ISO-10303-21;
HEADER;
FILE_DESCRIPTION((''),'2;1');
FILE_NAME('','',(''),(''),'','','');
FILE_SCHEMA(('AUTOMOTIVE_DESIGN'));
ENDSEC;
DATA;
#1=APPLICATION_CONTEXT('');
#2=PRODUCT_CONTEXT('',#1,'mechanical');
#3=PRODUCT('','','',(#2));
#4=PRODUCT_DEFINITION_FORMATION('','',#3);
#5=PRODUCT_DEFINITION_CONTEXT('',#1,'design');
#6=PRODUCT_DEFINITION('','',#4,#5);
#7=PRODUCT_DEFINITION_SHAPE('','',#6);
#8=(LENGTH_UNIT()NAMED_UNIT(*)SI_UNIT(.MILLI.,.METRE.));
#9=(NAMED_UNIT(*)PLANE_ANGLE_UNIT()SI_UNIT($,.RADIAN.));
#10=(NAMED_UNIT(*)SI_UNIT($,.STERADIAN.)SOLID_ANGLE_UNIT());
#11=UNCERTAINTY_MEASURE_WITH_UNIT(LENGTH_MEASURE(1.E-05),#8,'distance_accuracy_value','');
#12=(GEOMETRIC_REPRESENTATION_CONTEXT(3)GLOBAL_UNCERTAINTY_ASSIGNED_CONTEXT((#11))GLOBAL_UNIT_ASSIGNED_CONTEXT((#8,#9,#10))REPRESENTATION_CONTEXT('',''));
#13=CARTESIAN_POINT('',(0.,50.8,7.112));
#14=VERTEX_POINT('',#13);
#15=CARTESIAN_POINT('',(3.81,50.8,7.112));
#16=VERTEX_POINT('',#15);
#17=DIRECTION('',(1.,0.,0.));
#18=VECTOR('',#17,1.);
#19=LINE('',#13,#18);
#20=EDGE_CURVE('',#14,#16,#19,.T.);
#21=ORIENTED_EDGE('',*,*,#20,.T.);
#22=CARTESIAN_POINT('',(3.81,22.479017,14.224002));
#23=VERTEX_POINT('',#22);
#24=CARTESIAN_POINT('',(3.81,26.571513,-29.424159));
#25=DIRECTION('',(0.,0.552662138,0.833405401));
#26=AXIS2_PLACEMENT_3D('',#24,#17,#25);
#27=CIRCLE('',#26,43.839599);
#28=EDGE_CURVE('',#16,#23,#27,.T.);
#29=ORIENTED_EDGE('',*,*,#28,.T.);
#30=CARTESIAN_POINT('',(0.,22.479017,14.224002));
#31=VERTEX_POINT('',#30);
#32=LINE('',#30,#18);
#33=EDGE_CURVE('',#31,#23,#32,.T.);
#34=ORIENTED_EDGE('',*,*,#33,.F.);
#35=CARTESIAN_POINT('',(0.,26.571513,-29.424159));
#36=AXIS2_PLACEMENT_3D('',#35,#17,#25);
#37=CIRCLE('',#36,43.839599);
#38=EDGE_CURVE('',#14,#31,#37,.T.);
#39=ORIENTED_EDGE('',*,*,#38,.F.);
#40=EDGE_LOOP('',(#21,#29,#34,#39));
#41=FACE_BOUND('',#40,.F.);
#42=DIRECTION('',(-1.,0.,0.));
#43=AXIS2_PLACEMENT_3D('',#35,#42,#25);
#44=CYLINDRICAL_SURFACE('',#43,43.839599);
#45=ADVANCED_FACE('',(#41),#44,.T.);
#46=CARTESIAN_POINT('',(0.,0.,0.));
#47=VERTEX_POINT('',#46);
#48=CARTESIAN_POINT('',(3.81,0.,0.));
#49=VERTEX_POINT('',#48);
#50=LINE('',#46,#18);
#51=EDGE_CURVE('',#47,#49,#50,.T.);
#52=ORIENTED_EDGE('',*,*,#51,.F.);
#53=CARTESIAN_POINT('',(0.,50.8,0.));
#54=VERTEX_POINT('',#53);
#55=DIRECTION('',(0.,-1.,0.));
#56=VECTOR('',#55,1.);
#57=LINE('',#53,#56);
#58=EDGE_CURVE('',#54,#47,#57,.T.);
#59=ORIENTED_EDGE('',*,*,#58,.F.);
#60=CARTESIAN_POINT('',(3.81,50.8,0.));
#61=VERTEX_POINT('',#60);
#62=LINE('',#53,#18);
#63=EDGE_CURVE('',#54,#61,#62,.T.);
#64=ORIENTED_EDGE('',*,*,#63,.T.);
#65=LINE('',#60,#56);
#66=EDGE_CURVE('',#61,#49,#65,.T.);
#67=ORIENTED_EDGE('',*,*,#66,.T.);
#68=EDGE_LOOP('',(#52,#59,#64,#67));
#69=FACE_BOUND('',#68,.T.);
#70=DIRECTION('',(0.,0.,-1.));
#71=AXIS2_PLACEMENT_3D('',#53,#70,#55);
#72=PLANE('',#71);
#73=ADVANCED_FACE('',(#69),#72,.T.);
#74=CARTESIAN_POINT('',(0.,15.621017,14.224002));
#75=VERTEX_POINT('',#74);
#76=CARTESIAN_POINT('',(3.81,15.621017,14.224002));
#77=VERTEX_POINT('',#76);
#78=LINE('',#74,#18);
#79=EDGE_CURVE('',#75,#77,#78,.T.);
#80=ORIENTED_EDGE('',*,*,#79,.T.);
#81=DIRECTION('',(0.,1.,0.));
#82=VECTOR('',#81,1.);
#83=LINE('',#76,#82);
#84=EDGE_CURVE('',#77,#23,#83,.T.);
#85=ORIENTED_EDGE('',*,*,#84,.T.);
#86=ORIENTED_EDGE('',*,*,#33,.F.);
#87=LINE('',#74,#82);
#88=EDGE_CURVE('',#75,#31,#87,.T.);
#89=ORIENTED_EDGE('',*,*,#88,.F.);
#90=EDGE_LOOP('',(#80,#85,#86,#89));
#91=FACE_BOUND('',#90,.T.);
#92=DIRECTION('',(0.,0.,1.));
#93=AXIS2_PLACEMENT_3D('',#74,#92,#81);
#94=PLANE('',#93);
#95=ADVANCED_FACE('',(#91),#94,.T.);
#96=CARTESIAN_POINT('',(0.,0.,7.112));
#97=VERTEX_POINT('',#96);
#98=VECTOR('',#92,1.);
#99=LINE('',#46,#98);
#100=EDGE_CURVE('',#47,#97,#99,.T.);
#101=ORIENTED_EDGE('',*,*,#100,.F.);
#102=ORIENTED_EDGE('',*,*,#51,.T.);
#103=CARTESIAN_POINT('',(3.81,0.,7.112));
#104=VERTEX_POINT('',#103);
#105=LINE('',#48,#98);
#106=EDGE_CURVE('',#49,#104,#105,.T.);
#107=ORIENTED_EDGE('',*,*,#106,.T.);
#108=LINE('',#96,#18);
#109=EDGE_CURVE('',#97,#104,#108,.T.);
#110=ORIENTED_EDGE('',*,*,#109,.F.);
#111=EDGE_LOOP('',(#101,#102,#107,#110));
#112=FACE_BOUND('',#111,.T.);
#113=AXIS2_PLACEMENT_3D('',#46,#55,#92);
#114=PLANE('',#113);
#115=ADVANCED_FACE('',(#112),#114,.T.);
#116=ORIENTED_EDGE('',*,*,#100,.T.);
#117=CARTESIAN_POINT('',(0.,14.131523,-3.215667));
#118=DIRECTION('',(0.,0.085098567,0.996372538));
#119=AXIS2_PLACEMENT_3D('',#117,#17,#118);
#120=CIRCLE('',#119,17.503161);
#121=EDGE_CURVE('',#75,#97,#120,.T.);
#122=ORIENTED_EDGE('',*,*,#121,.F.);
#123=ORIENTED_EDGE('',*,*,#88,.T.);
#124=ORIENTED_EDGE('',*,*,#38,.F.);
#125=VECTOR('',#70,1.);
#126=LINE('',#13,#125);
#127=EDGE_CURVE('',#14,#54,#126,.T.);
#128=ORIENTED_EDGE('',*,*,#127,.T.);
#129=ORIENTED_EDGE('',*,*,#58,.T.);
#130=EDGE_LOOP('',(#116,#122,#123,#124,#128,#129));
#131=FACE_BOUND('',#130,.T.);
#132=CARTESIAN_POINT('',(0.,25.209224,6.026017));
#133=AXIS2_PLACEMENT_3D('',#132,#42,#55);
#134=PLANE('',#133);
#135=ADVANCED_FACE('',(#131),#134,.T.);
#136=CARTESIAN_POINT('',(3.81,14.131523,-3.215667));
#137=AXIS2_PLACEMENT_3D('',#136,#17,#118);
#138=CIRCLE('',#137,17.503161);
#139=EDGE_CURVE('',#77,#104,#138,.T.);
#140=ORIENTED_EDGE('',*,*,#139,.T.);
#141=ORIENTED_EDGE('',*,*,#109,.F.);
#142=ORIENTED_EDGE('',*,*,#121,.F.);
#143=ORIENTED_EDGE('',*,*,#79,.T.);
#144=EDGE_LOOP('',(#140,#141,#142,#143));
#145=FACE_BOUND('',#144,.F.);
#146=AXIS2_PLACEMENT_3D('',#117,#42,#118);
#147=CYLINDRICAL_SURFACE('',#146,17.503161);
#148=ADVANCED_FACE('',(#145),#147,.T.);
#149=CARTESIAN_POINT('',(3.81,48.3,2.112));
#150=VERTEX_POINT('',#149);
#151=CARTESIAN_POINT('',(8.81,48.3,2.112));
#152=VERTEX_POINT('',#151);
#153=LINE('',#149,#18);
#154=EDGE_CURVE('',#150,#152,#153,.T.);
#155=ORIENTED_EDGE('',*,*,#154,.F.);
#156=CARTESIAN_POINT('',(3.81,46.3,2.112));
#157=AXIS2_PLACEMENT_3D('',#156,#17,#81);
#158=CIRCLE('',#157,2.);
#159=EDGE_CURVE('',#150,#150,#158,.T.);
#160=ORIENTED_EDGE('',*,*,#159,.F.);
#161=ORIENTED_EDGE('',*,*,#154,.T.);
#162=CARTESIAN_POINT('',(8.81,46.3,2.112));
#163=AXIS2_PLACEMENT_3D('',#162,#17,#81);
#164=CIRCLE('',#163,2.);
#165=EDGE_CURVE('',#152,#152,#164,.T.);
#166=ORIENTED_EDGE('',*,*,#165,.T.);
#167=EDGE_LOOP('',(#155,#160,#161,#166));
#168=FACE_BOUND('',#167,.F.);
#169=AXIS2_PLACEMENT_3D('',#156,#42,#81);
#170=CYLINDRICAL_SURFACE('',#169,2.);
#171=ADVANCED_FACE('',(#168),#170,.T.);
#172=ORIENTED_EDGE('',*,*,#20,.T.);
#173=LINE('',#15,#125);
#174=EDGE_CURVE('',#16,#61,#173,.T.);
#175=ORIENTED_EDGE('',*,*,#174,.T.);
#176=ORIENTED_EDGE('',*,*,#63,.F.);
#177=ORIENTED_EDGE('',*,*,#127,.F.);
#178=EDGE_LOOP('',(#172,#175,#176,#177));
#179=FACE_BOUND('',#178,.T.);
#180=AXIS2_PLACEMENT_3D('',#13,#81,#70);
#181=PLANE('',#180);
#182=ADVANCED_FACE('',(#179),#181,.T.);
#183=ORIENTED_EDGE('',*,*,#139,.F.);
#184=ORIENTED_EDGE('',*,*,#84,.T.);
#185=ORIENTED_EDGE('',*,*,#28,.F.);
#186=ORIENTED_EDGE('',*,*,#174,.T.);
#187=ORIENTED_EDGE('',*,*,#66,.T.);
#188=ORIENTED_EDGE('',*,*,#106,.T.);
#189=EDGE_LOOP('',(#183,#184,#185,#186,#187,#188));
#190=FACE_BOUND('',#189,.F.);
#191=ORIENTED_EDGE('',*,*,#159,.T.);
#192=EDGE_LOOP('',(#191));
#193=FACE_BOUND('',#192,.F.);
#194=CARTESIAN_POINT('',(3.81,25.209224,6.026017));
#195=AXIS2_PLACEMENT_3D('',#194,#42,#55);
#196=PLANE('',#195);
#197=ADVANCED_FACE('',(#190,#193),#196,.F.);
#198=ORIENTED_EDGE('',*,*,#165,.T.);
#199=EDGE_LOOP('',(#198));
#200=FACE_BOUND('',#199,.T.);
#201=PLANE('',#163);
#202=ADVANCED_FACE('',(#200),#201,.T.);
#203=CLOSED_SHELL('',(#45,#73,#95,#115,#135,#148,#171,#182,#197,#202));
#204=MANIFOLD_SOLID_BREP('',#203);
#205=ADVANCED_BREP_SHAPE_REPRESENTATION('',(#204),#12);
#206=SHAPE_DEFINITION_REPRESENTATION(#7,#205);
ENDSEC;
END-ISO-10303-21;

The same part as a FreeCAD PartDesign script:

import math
import FreeCAD as App
import Part
import Sketcher
Q = App.Units.Quantity

doc = App.newDocument("Part")
body = doc.addObject("PartDesign::Body", "Body")

# Sketch on YZ plane
sketch1 = doc.addObject("Sketcher::SketchObject", "Sketch")
body.addObject(sketch1)
sketch1.AttachmentSupport = (doc.YZ_Plane, [""])
sketch1.MapMode = "FlatFace"
sketch1.addGeometry([
    Part.LineSegment(App.Vector(50.8, 0, 0), App.Vector(50.8, 7.112, 0)),  # 0
    Part.ArcOfCircle(Part.Circle(App.Vector(26.571513, -29.424159, 0), App.Vector(0, 0, 1), 43.839599), math.radians(56.450161), math.radians(95.356451)),  # 1
    Part.LineSegment(App.Vector(22.479017, 14.224002, 0), App.Vector(15.621017, 14.224002, 0)),  # 2
    Part.ArcOfCircle(Part.Circle(App.Vector(14.131523, -3.215667, 0), App.Vector(0, 0, 1), 17.503161), math.radians(85.118307), math.radians(143.83974)),  # 3
    Part.LineSegment(App.Vector(0, 7.112, 0), App.Vector(0, 0, 0)),  # 4
    Part.LineSegment(App.Vector(0, 0, 0), App.Vector(50.8, 0, 0)),  # 5
], False)
sketch1.addConstraint([
    Sketcher.Constraint("Coincident", 0, 2, 1, 1),
    Sketcher.Constraint("Coincident", 1, 2, 2, 1),
    Sketcher.Constraint("Coincident", 2, 2, 3, 1),
    Sketcher.Constraint("Coincident", 3, 2, 4, 1),
    Sketcher.Constraint("Coincident", 4, 2, 5, 1),
    Sketcher.Constraint("Coincident", 5, 2, 0, 1),
    Sketcher.Constraint("Vertical", 0),
    Sketcher.Constraint("Horizontal", 2),
    Sketcher.Constraint("Vertical", 4),
    Sketcher.Constraint("Horizontal", 5),
    Sketcher.Constraint("Coincident", 4, 2, -1, 1),
    Sketcher.Constraint("Horizontal", 0, 2, 3, 2),
    Sketcher.Constraint("DistanceX", 5, 1, 5, 2, Q("2 in")),
    Sketcher.Constraint("DistanceX", 2, 2, 2, 1, Q("0.27 in")),
    Sketcher.Constraint("DistanceY", 0, 1, 0, 2, Q("0.28 in")),
    Sketcher.Constraint("DistanceY", -1, 1, 1, 2, Q("0.5600001 in")),
    Sketcher.Constraint("Radius", 1, 43.839599),
    Sketcher.Constraint("Radius", 3, 17.503161),
    Sketcher.Constraint("DistanceY", 1, 3, -1, 1, 29.424159),
])
pad1 = doc.addObject("PartDesign::Pad", "Pad")
body.addObject(pad1)
pad1.Profile = sketch1
pad1.Length = Q("0.15 in")

# Sketch on YZ plane
sketch2 = doc.addObject("Sketcher::SketchObject", "Sketch001")
body.addObject(sketch2)
sketch2.AttachmentSupport = (doc.YZ_Plane, [""])
sketch2.MapMode = "FlatFace"
sketch2.AttachmentOffset = App.Placement(App.Vector(0, 0, 0.15 * 25.4), App.Rotation())
sketch2.addGeometry(Part.Circle(App.Vector(46.3, 2.112, 0), App.Vector(0, 0, 1), 2), False)
sketch2.addConstraint([
    Sketcher.Constraint("Diameter", 0, 4.0),
    Sketcher.Constraint("DistanceX", -1, 1, 0, 3, 46.3),
    Sketcher.Constraint("DistanceY", -1, 1, 0, 3, 2.112),
])
pad2 = doc.addObject("PartDesign::Pad", "Pad001")
body.addObject(pad2)
pad2.Profile = sketch2
pad2.Length = 5

doc.recompute()
